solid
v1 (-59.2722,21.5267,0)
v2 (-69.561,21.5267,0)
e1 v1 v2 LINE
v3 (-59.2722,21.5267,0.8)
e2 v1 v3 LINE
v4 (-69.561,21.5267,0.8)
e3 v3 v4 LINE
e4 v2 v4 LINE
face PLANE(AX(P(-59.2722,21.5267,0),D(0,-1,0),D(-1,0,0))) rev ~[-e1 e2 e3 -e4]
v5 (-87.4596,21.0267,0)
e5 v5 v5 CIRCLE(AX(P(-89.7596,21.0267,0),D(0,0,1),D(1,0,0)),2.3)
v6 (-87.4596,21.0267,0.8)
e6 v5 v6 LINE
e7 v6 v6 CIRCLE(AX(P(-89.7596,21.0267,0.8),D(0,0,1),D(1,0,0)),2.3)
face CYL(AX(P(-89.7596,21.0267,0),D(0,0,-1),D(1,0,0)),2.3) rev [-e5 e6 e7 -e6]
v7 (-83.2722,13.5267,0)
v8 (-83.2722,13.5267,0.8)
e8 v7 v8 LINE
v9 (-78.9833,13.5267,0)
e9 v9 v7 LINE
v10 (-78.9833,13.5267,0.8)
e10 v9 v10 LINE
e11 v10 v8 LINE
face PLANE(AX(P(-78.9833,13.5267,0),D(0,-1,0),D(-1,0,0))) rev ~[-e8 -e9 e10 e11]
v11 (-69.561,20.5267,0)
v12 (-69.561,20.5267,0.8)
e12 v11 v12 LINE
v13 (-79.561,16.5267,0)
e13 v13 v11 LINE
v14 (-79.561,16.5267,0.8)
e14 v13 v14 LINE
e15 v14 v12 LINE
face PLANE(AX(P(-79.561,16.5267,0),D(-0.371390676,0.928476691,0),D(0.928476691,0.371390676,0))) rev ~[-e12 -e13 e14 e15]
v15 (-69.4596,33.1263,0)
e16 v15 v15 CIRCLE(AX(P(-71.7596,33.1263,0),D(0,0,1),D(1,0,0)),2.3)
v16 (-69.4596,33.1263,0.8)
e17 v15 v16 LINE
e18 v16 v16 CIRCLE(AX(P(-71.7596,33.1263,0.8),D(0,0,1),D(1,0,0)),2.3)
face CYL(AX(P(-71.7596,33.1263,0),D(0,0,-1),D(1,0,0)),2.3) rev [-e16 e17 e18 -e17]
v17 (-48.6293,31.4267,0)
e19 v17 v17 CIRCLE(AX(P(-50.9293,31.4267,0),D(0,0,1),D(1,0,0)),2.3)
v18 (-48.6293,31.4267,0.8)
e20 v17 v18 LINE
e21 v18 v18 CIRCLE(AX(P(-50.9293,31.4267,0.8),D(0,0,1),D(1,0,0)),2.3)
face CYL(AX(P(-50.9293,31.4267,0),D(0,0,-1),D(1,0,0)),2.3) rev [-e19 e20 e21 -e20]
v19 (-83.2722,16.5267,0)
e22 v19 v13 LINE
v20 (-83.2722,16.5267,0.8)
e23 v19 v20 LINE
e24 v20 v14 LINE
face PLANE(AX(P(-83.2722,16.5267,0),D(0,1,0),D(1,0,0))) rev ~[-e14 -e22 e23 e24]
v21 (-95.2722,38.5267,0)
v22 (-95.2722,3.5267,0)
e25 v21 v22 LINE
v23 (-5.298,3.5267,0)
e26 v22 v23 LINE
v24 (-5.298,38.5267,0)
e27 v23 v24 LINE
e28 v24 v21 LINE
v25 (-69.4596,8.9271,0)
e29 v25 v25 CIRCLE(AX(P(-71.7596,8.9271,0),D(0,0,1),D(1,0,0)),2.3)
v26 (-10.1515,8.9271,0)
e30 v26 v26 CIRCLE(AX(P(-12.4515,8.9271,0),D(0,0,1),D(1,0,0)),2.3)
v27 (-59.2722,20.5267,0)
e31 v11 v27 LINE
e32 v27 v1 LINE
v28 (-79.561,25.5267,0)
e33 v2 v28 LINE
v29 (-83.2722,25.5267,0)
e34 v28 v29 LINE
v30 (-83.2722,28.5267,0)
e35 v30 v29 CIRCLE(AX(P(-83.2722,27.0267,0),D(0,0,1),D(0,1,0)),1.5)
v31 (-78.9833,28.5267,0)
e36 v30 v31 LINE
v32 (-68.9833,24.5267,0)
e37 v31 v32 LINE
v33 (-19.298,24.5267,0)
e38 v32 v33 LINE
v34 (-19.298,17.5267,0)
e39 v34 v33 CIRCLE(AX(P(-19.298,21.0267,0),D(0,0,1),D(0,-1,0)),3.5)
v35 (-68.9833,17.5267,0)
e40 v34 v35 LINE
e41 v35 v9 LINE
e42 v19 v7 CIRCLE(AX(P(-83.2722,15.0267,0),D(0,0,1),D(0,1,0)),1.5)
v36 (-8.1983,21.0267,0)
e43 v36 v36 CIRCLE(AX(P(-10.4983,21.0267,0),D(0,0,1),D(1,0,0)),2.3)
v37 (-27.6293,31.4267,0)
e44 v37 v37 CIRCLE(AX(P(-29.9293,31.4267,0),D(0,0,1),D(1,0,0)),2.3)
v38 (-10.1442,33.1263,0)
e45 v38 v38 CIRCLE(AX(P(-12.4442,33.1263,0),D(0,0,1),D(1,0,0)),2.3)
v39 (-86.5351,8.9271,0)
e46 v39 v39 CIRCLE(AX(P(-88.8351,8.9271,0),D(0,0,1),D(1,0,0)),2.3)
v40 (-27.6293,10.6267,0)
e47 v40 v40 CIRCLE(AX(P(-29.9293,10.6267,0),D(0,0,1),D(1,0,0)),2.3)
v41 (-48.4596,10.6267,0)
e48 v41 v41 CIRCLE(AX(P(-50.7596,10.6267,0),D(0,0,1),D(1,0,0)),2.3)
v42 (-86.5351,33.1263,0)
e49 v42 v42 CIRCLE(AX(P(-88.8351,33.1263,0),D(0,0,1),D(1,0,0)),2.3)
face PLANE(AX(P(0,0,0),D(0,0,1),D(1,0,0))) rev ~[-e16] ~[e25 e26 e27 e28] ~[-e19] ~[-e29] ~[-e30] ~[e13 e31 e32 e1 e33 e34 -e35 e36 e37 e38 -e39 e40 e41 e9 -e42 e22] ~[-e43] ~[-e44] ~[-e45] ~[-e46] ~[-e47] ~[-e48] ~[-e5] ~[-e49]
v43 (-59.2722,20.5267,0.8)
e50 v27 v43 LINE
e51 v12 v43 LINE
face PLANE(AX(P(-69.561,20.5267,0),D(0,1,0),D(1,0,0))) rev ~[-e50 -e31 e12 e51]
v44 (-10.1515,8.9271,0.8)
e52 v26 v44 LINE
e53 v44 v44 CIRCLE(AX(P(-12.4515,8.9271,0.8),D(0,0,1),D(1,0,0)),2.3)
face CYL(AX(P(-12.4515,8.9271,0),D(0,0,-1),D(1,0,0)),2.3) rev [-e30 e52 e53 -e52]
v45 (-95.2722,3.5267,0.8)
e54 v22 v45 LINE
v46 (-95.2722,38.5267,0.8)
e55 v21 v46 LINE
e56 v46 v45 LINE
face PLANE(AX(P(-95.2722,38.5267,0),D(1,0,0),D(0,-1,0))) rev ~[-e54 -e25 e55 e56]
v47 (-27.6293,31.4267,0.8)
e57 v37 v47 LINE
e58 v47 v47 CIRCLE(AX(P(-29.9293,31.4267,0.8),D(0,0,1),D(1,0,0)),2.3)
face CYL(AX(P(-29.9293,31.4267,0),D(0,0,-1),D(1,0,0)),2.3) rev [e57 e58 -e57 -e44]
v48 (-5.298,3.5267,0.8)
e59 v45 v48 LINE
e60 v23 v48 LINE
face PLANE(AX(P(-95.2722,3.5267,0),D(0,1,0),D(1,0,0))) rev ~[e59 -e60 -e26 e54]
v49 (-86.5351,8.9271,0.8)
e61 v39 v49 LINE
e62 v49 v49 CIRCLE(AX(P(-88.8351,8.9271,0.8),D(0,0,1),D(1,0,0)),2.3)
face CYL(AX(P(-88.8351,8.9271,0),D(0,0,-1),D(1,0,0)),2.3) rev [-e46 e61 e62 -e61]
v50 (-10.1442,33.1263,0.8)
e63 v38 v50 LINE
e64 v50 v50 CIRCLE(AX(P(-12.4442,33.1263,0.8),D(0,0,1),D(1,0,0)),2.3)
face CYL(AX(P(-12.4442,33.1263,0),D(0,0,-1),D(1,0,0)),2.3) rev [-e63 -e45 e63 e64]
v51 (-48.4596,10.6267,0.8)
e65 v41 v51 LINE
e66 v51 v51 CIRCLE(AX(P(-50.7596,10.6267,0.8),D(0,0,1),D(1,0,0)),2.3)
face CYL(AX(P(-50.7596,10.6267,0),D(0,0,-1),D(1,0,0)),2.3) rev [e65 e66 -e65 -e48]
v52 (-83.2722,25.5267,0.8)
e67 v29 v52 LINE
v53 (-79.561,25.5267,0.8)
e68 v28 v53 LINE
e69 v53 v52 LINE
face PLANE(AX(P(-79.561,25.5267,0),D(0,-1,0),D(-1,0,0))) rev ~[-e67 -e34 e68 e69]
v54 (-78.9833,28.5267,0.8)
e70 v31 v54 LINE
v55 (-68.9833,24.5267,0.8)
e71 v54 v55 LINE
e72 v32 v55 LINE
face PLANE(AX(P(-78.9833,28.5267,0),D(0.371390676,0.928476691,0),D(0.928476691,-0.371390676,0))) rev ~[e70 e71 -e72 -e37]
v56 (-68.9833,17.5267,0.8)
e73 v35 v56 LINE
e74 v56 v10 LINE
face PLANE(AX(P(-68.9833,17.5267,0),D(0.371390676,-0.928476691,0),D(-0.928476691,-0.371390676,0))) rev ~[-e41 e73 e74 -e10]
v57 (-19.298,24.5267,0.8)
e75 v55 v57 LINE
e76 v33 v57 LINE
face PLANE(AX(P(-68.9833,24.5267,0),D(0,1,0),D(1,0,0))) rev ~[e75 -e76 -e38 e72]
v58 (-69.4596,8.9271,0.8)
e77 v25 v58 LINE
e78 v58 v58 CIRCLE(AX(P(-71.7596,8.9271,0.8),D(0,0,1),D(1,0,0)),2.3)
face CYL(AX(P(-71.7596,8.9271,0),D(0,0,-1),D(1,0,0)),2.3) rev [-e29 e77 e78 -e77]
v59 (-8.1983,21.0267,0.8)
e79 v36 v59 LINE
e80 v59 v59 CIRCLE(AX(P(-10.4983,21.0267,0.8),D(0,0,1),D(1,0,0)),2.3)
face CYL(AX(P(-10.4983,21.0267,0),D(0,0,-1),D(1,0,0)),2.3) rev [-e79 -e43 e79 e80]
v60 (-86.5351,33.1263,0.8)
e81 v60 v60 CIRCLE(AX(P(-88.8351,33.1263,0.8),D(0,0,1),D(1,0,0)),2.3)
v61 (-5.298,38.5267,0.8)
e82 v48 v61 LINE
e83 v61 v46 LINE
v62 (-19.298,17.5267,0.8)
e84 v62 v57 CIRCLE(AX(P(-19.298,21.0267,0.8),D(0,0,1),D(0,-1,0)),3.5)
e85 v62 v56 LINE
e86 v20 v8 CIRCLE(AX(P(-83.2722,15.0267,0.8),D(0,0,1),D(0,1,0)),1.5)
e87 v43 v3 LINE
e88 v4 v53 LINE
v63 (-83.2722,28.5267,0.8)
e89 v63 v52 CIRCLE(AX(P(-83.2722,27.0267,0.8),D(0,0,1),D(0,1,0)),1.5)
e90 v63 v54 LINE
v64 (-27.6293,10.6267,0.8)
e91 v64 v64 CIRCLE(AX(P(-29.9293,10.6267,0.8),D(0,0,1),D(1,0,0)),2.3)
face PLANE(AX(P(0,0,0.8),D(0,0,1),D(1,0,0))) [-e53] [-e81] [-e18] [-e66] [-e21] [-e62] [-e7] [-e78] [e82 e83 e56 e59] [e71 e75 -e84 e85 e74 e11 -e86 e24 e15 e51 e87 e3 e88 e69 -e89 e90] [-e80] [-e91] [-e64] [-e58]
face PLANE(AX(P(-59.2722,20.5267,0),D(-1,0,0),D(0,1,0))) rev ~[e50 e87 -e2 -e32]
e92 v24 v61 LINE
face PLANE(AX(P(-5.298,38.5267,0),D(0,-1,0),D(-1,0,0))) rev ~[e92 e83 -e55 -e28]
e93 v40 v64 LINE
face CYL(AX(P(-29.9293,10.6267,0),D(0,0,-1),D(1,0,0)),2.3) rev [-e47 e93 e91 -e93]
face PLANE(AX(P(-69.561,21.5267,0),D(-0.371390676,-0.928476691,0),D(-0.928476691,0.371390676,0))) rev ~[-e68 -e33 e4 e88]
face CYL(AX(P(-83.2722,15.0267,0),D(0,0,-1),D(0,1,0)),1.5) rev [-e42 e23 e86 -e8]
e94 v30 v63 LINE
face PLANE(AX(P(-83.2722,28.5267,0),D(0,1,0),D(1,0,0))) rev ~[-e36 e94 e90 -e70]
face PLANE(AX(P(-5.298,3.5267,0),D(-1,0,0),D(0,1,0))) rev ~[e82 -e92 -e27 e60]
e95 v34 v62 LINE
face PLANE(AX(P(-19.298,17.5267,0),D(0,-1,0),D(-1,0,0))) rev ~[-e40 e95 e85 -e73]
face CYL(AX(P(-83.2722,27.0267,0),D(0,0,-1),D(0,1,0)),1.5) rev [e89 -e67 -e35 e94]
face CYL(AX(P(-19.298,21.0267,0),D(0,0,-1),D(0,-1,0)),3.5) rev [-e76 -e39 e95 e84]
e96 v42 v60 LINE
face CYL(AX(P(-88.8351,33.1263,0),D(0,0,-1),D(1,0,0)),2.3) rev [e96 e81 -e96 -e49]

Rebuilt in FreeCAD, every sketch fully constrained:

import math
import FreeCAD as App
import Part
import Sketcher
from FreeCAD import Vector

doc = App.newDocument("Part")
params = doc.addObject("Spreadsheet::Sheet", "Params")
for row, (alias, value) in enumerate([
    ("sketch1_diameter", "4.6 mm"),
    ("sketch1_radius", "3.5 mm"),
    ("sketch1_radius2", "1.5 mm"),
    ("sketch1_height", "35 mm"),
    ("pad1_length", "0.8 mm"),
], start=1):
    params.set(f"A{row}", alias)
    params.set(f"B{row}", "=" + value)
    params.setAlias(f"B{row}", alias)

body = doc.addObject("PartDesign::Body", "Body")

sketch1 = body.newObject("Sketcher::SketchObject", "Sketch")
sketch1.AttachmentSupport = (doc.getObject("XY_Plane"), [""])
sketch1.MapMode = "FlatFace"
sketch1.addGeometry(Part.LineSegment(Vector(-5.298, 3.5267, 0), Vector(-5.298, 38.5267, 0)), False)
sketch1.addGeometry(Part.LineSegment(Vector(-5.298, 38.5267, 0), Vector(-95.2722, 38.5267, 0)), False)
sketch1.addGeometry(Part.LineSegment(Vector(-95.2722, 38.5267, 0), Vector(-95.2722, 3.5267, 0)), False)
sketch1.addGeometry(Part.LineSegment(Vector(-95.2722, 3.5267, 0), Vector(-5.298, 3.5267, 0)), False)
sketch1.addGeometry(Part.Circle(Vector(-88.8351, 8.9271, 0), Vector(0, 0, 1), 2.3), False)
sketch1.addGeometry(Part.Circle(Vector(-71.7596, 8.9271, 0), Vector(0, 0, 1), 2.3), False)
sketch1.addGeometry(Part.Circle(Vector(-50.7596, 10.6267, 0), Vector(0, 0, 1), 2.3), False)
sketch1.addGeometry(Part.Circle(Vector(-29.9293, 10.6267, 0), Vector(0, 0, 1), 2.3), False)
sketch1.addGeometry(Part.Circle(Vector(-12.4515, 8.9271, 0), Vector(0, 0, 1), 2.3), False)
sketch1.addGeometry(Part.Circle(Vector(-89.7596, 21.0267, 0), Vector(0, 0, 1), 2.3), False)
sketch1.addGeometry(Part.Circle(Vector(-88.8351, 33.1263, 0), Vector(0, 0, 1), 2.3), False)
sketch1.addGeometry(Part.Circle(Vector(-71.7596, 33.1263, 0), Vector(0, 0, 1), 2.3), False)
sketch1.addGeometry(Part.Circle(Vector(-50.9293, 31.4267, 0), Vector(0, 0, 1), 2.3), False)
sketch1.addGeometry(Part.LineSegment(Vector(-83.2722, 28.5267, 0), Vector(-78.9833, 28.5267, 0)), False)
sketch1.addGeometry(Part.LineSegment(Vector(-78.9833, 28.5267, 0), Vector(-68.9833, 24.5267, 0)), False)
sketch1.addGeometry(Part.LineSegment(Vector(-68.9833, 24.5267, 0), Vector(-19.298, 24.5267, 0)), False)
sketch1.addGeometry(Part.ArcOfCircle(Part.Circle(Vector(-19.298, 21.0267, 0), Vector(0, 0, 1), 3.5), math.radians(-90), math.radians(90)), False)
sketch1.addGeometry(Part.LineSegment(Vector(-19.298, 17.5267, 0), Vector(-68.9833, 17.5267, 0)), False)
sketch1.addGeometry(Part.LineSegment(Vector(-68.9833, 17.5267, 0), Vector(-78.9833, 13.5267, 0)), False)
sketch1.addGeometry(Part.LineSegment(Vector(-78.9833, 13.5267, 0), Vector(-83.2722, 13.5267, 0)), False)
sketch1.addGeometry(Part.ArcOfCircle(Part.Circle(Vector(-83.2722, 15.0267, 0), Vector(0, 0, 1), 1.5), math.radians(90), math.radians(270)), False)
sketch1.addGeometry(Part.LineSegment(Vector(-83.2722, 16.5267, 0), Vector(-79.561, 16.5267, 0)), False)
sketch1.addGeometry(Part.LineSegment(Vector(-79.561, 16.5267, 0), Vector(-69.561, 20.5267, 0)), False)
sketch1.addGeometry(Part.LineSegment(Vector(-69.561, 20.5267, 0), Vector(-59.2722, 20.5267, 0)), False)
sketch1.addGeometry(Part.LineSegment(Vector(-59.2722, 20.5267, 0), Vector(-59.2722, 21.5267, 0)), False)
sketch1.addGeometry(Part.LineSegment(Vector(-59.2722, 21.5267, 0), Vector(-69.561, 21.5267, 0)), False)
sketch1.addGeometry(Part.LineSegment(Vector(-69.561, 21.5267, 0), Vector(-79.561, 25.5267, 0)), False)
sketch1.addGeometry(Part.LineSegment(Vector(-79.561, 25.5267, 0), Vector(-83.2722, 25.5267, 0)), False)
sketch1.addGeometry(Part.ArcOfCircle(Part.Circle(Vector(-83.2722, 27.0267, 0), Vector(0, 0, 1), 1.5), math.radians(90), math.radians(270)), False)
sketch1.addGeometry(Part.Circle(Vector(-10.4983, 21.0267, 0), Vector(0, 0, 1), 2.3), False)
sketch1.addGeometry(Part.Circle(Vector(-29.9293, 31.4267, 0), Vector(0, 0, 1), 2.3), False)
sketch1.addGeometry(Part.Circle(Vector(-12.4442, 33.1263, 0), Vector(0, 0, 1), 2.3), False)
sketch1.addConstraint(Sketcher.Constraint("Coincident", 0, 2, 1, 1))
sketch1.addConstraint(Sketcher.Constraint("Coincident", 1, 2, 2, 1))
sketch1.addConstraint(Sketcher.Constraint("Coincident", 2, 2, 3, 1))
sketch1.addConstraint(Sketcher.Constraint("Coincident", 3, 2, 0, 1))
sketch1.addConstraint(Sketcher.Constraint("Coincident", 13, 2, 14, 1))
sketch1.addConstraint(Sketcher.Constraint("Coincident", 14, 2, 15, 1))
sketch1.addConstraint(Sketcher.Constraint("Tangent", 15, 2, 16, 2))
sketch1.addConstraint(Sketcher.Constraint("Tangent", 16, 1, 17, 1))
sketch1.addConstraint(Sketcher.Constraint("Coincident", 17, 2, 18, 1))
sketch1.addConstraint(Sketcher.Constraint("Coincident", 18, 2, 19, 1))
sketch1.addConstraint(Sketcher.Constraint("Tangent", 19, 2, 20, 2))
sketch1.addConstraint(Sketcher.Constraint("Tangent", 20, 1, 21, 1))
sketch1.addConstraint(Sketcher.Constraint("Coincident", 21, 2, 22, 1))
sketch1.addConstraint(Sketcher.Constraint("Coincident", 22, 2, 23, 1))
sketch1.addConstraint(Sketcher.Constraint("Coincident", 23, 2, 24, 1))
sketch1.addConstraint(Sketcher.Constraint("Coincident", 24, 2, 25, 1))
sketch1.addConstraint(Sketcher.Constraint("Coincident", 25, 2, 26, 1))
sketch1.addConstraint(Sketcher.Constraint("Coincident", 26, 2, 27, 1))
sketch1.addConstraint(Sketcher.Constraint("Tangent", 27, 2, 28, 2))
sketch1.addConstraint(Sketcher.Constraint("Tangent", 28, 1, 13, 1))
sketch1.addConstraint(Sketcher.Constraint("Vertical", 0))
sketch1.addConstraint(Sketcher.Constraint("Horizontal", 1))
sketch1.addConstraint(Sketcher.Constraint("Vertical", 2))
sketch1.addConstraint(Sketcher.Constraint("Horizontal", 3))
sketch1.addConstraint(Sketcher.Constraint("Horizontal", 13))
sketch1.addConstraint(Sketcher.Constraint("Horizontal", 15))
sketch1.addConstraint(Sketcher.Constraint("Horizontal", 17))
sketch1.addConstraint(Sketcher.Constraint("Horizontal", 19))
sketch1.addConstraint(Sketcher.Constraint("Horizontal", 21))
sketch1.addConstraint(Sketcher.Constraint("Horizontal", 23))
sketch1.addConstraint(Sketcher.Constraint("Vertical", 24))
sketch1.addConstraint(Sketcher.Constraint("Horizontal", 25))
sketch1.addConstraint(Sketcher.Constraint("Horizontal", 27))
sketch1.addConstraint(Sketcher.Constraint("Equal", 4, 5))
sketch1.addConstraint(Sketcher.Constraint("Equal", 5, 6))
sketch1.addConstraint(Sketcher.Constraint("Equal", 6, 7))
sketch1.addConstraint(Sketcher.Constraint("Equal", 7, 8))
sketch1.addConstraint(Sketcher.Constraint("Equal", 8, 9))
sketch1.addConstraint(Sketcher.Constraint("Equal", 9, 10))
sketch1.addConstraint(Sketcher.Constraint("Equal", 10, 11))
sketch1.addConstraint(Sketcher.Constraint("Equal", 11, 12))
sketch1.addConstraint(Sketcher.Constraint("Equal", 20, 28))
sketch1.addConstraint(Sketcher.Constraint("Equal", 12, 29))
sketch1.addConstraint(Sketcher.Constraint("Equal", 29, 30))
sketch1.addConstraint(Sketcher.Constraint("Equal", 30, 31))
sketch1.addConstraint(Sketcher.Constraint("Parallel", 18, 22))
sketch1.addConstraint(Sketcher.Constraint("Parallel", 14, 26))
sketch1.addConstraint(Sketcher.Constraint("Horizontal", 4, 3, 5, 3))
sketch1.addConstraint(Sketcher.Constraint("Horizontal", 6, 3, 7, 3))
sketch1.addConstraint(Sketcher.Constraint("Horizontal", 5, 3, 8, 3))
sketch1.addConstraint(Sketcher.Constraint("Horizontal", 10, 3, 11, 3))
sketch1.addConstraint(Sketcher.Constraint("Horizontal", 9, 3, 16, 3))
sketch1.addConstraint(Sketcher.Constraint("Horizontal", 16, 3, 29, 3))
sketch1.addConstraint(Sketcher.Constraint("Horizontal", 12, 3, 30, 3))
sketch1.addConstraint(Sketcher.Constraint("Horizontal", 11, 3, 31, 3))
sketch1.addConstraint(Sketcher.Constraint("Vertical", 4, 3, 10, 3))
sketch1.addConstraint(Sketcher.Constraint("Vertical", 5, 3, 11, 3))
sketch1.addConstraint(Sketcher.Constraint("Vertical", 20, 3, 28, 3))
sketch1.addConstraint(Sketcher.Constraint("Vertical", 7, 3, 30, 3))
sketch1.addConstraint(Sketcher.Constraint("Vertical", 14, 2, 17, 2))
sketch1.addConstraint(Sketcher.Constraint("Vertical", 13, 2, 18, 2))
sketch1.addConstraint(Sketcher.Constraint("Vertical", 22, 2, 25, 2))
sketch1.addConstraint(Sketcher.Constraint("Vertical", 21, 2, 26, 2))
sketch1.addConstraint(Sketcher.Constraint("Equal", 14, 18))
sketch1.addConstraint(Sketcher.Constraint("Equal", 18, 22))
sketch1.addConstraint(Sketcher.Constraint("Diameter", 4, 4.6))
sketch1.addConstraint(Sketcher.Constraint("Radius", 16, 3.5))
sketch1.addConstraint(Sketcher.Constraint("Radius", 20, 1.5))
sketch1.addConstraint(Sketcher.Constraint("DistanceY", 0, 1, 0, 2, 35.0))
sketch1.addConstraint(Sketcher.Constraint("DistanceX", 5, 3, 6, 3, 21.0))
sketch1.addConstraint(Sketcher.Constraint("DistanceX", 9, 3, 5, 3, 18.0))
sketch1.addConstraint(Sketcher.Constraint("DistanceX", 12, 3, 7, 3, 21.0))
sketch1.addConstraint(Sketcher.Constraint("DistanceY", 20, 3, 9, 3, 6.0))
sketch1.addConstraint(Sketcher.Constraint("DistanceX", 16, 3, 0, 2, 14.0))
sketch1.addConstraint(Sketcher.Constraint("DistanceX", 1, 2, 28, 3, 12.0))
sketch1.addConstraint(Sketcher.Constraint("DistanceX", 13, 2, 14, 2, 10.0))
sketch1.addConstraint(Sketcher.Constraint("DistanceY", 6, 3, 9, 3, 10.4))
sketch1.addConstraint(Sketcher.Constraint("DistanceY", 6, 3, 12, 3, 20.8))
sketch1.addConstraint(Sketcher.Constraint("DistanceY", 29, 3, 0, 2, 17.5))
sketch1.addConstraint(Sketcher.Constraint("DistanceX", 13, 1, 13, 2, 4.289))
sketch1.addConstraint(Sketcher.Constraint("DistanceX", 1, 2, 1, 1, 89.9742))
sketch1.addConstraint(Sketcher.Constraint("DistanceX", 21, 1, 21, 2, 3.7112))
sketch1.addConstraint(Sketcher.Constraint("DistanceX", 23, 1, 23, 2, 10.2888))
sketch1.addConstraint(Sketcher.Constraint("DistanceX", 4, 3, -1, 1, 88.835))
sketch1.addConstraint(Sketcher.Constraint("DistanceY", -1, 1, 4, 3, 8.927))
sketch1.addConstraint(Sketcher.Constraint("DistanceX", 16, 3, -1, 1, 19.298))
sketch1.addConstraint(Sketcher.Constraint("DistanceX", 6, 3, 8, 3, 38.308))
sketch1.addConstraint(Sketcher.Constraint("DistanceX", 7, 3, 29, 3, 19.431))
sketch1.addConstraint(Sketcher.Constraint("DistanceX", 31, 3, 29, 3, 1.946))
sketch1.addConstraint(Sketcher.Constraint("DistanceX", 23, 2, 12, 3, 8.343))
sketch1.addConstraint(Sketcher.Constraint("DistanceX", 5, 3, -1, 1, 71.7596))
sketch1.addConstraint(Sketcher.Constraint("DistanceY", -1, 1, 6, 3, 10.6267))
sketch1.addConstraint(Sketcher.Constraint("DistanceY", -1, 1, 10, 3, 33.1263))
sketch1.setExpression("Constraints[65]", "Params.sketch1_diameter")
sketch1.setExpression("Constraints[66]", "Params.sketch1_radius")
sketch1.setExpression("Constraints[67]", "Params.sketch1_radius2")
sketch1.setExpression("Constraints[68]", "Params.sketch1_height")
pad1 = body.newObject("PartDesign::Pad", "Pad")
pad1.Profile = sketch1
pad1.setExpression("Length", "Params.pad1_length")

doc.recompute()
